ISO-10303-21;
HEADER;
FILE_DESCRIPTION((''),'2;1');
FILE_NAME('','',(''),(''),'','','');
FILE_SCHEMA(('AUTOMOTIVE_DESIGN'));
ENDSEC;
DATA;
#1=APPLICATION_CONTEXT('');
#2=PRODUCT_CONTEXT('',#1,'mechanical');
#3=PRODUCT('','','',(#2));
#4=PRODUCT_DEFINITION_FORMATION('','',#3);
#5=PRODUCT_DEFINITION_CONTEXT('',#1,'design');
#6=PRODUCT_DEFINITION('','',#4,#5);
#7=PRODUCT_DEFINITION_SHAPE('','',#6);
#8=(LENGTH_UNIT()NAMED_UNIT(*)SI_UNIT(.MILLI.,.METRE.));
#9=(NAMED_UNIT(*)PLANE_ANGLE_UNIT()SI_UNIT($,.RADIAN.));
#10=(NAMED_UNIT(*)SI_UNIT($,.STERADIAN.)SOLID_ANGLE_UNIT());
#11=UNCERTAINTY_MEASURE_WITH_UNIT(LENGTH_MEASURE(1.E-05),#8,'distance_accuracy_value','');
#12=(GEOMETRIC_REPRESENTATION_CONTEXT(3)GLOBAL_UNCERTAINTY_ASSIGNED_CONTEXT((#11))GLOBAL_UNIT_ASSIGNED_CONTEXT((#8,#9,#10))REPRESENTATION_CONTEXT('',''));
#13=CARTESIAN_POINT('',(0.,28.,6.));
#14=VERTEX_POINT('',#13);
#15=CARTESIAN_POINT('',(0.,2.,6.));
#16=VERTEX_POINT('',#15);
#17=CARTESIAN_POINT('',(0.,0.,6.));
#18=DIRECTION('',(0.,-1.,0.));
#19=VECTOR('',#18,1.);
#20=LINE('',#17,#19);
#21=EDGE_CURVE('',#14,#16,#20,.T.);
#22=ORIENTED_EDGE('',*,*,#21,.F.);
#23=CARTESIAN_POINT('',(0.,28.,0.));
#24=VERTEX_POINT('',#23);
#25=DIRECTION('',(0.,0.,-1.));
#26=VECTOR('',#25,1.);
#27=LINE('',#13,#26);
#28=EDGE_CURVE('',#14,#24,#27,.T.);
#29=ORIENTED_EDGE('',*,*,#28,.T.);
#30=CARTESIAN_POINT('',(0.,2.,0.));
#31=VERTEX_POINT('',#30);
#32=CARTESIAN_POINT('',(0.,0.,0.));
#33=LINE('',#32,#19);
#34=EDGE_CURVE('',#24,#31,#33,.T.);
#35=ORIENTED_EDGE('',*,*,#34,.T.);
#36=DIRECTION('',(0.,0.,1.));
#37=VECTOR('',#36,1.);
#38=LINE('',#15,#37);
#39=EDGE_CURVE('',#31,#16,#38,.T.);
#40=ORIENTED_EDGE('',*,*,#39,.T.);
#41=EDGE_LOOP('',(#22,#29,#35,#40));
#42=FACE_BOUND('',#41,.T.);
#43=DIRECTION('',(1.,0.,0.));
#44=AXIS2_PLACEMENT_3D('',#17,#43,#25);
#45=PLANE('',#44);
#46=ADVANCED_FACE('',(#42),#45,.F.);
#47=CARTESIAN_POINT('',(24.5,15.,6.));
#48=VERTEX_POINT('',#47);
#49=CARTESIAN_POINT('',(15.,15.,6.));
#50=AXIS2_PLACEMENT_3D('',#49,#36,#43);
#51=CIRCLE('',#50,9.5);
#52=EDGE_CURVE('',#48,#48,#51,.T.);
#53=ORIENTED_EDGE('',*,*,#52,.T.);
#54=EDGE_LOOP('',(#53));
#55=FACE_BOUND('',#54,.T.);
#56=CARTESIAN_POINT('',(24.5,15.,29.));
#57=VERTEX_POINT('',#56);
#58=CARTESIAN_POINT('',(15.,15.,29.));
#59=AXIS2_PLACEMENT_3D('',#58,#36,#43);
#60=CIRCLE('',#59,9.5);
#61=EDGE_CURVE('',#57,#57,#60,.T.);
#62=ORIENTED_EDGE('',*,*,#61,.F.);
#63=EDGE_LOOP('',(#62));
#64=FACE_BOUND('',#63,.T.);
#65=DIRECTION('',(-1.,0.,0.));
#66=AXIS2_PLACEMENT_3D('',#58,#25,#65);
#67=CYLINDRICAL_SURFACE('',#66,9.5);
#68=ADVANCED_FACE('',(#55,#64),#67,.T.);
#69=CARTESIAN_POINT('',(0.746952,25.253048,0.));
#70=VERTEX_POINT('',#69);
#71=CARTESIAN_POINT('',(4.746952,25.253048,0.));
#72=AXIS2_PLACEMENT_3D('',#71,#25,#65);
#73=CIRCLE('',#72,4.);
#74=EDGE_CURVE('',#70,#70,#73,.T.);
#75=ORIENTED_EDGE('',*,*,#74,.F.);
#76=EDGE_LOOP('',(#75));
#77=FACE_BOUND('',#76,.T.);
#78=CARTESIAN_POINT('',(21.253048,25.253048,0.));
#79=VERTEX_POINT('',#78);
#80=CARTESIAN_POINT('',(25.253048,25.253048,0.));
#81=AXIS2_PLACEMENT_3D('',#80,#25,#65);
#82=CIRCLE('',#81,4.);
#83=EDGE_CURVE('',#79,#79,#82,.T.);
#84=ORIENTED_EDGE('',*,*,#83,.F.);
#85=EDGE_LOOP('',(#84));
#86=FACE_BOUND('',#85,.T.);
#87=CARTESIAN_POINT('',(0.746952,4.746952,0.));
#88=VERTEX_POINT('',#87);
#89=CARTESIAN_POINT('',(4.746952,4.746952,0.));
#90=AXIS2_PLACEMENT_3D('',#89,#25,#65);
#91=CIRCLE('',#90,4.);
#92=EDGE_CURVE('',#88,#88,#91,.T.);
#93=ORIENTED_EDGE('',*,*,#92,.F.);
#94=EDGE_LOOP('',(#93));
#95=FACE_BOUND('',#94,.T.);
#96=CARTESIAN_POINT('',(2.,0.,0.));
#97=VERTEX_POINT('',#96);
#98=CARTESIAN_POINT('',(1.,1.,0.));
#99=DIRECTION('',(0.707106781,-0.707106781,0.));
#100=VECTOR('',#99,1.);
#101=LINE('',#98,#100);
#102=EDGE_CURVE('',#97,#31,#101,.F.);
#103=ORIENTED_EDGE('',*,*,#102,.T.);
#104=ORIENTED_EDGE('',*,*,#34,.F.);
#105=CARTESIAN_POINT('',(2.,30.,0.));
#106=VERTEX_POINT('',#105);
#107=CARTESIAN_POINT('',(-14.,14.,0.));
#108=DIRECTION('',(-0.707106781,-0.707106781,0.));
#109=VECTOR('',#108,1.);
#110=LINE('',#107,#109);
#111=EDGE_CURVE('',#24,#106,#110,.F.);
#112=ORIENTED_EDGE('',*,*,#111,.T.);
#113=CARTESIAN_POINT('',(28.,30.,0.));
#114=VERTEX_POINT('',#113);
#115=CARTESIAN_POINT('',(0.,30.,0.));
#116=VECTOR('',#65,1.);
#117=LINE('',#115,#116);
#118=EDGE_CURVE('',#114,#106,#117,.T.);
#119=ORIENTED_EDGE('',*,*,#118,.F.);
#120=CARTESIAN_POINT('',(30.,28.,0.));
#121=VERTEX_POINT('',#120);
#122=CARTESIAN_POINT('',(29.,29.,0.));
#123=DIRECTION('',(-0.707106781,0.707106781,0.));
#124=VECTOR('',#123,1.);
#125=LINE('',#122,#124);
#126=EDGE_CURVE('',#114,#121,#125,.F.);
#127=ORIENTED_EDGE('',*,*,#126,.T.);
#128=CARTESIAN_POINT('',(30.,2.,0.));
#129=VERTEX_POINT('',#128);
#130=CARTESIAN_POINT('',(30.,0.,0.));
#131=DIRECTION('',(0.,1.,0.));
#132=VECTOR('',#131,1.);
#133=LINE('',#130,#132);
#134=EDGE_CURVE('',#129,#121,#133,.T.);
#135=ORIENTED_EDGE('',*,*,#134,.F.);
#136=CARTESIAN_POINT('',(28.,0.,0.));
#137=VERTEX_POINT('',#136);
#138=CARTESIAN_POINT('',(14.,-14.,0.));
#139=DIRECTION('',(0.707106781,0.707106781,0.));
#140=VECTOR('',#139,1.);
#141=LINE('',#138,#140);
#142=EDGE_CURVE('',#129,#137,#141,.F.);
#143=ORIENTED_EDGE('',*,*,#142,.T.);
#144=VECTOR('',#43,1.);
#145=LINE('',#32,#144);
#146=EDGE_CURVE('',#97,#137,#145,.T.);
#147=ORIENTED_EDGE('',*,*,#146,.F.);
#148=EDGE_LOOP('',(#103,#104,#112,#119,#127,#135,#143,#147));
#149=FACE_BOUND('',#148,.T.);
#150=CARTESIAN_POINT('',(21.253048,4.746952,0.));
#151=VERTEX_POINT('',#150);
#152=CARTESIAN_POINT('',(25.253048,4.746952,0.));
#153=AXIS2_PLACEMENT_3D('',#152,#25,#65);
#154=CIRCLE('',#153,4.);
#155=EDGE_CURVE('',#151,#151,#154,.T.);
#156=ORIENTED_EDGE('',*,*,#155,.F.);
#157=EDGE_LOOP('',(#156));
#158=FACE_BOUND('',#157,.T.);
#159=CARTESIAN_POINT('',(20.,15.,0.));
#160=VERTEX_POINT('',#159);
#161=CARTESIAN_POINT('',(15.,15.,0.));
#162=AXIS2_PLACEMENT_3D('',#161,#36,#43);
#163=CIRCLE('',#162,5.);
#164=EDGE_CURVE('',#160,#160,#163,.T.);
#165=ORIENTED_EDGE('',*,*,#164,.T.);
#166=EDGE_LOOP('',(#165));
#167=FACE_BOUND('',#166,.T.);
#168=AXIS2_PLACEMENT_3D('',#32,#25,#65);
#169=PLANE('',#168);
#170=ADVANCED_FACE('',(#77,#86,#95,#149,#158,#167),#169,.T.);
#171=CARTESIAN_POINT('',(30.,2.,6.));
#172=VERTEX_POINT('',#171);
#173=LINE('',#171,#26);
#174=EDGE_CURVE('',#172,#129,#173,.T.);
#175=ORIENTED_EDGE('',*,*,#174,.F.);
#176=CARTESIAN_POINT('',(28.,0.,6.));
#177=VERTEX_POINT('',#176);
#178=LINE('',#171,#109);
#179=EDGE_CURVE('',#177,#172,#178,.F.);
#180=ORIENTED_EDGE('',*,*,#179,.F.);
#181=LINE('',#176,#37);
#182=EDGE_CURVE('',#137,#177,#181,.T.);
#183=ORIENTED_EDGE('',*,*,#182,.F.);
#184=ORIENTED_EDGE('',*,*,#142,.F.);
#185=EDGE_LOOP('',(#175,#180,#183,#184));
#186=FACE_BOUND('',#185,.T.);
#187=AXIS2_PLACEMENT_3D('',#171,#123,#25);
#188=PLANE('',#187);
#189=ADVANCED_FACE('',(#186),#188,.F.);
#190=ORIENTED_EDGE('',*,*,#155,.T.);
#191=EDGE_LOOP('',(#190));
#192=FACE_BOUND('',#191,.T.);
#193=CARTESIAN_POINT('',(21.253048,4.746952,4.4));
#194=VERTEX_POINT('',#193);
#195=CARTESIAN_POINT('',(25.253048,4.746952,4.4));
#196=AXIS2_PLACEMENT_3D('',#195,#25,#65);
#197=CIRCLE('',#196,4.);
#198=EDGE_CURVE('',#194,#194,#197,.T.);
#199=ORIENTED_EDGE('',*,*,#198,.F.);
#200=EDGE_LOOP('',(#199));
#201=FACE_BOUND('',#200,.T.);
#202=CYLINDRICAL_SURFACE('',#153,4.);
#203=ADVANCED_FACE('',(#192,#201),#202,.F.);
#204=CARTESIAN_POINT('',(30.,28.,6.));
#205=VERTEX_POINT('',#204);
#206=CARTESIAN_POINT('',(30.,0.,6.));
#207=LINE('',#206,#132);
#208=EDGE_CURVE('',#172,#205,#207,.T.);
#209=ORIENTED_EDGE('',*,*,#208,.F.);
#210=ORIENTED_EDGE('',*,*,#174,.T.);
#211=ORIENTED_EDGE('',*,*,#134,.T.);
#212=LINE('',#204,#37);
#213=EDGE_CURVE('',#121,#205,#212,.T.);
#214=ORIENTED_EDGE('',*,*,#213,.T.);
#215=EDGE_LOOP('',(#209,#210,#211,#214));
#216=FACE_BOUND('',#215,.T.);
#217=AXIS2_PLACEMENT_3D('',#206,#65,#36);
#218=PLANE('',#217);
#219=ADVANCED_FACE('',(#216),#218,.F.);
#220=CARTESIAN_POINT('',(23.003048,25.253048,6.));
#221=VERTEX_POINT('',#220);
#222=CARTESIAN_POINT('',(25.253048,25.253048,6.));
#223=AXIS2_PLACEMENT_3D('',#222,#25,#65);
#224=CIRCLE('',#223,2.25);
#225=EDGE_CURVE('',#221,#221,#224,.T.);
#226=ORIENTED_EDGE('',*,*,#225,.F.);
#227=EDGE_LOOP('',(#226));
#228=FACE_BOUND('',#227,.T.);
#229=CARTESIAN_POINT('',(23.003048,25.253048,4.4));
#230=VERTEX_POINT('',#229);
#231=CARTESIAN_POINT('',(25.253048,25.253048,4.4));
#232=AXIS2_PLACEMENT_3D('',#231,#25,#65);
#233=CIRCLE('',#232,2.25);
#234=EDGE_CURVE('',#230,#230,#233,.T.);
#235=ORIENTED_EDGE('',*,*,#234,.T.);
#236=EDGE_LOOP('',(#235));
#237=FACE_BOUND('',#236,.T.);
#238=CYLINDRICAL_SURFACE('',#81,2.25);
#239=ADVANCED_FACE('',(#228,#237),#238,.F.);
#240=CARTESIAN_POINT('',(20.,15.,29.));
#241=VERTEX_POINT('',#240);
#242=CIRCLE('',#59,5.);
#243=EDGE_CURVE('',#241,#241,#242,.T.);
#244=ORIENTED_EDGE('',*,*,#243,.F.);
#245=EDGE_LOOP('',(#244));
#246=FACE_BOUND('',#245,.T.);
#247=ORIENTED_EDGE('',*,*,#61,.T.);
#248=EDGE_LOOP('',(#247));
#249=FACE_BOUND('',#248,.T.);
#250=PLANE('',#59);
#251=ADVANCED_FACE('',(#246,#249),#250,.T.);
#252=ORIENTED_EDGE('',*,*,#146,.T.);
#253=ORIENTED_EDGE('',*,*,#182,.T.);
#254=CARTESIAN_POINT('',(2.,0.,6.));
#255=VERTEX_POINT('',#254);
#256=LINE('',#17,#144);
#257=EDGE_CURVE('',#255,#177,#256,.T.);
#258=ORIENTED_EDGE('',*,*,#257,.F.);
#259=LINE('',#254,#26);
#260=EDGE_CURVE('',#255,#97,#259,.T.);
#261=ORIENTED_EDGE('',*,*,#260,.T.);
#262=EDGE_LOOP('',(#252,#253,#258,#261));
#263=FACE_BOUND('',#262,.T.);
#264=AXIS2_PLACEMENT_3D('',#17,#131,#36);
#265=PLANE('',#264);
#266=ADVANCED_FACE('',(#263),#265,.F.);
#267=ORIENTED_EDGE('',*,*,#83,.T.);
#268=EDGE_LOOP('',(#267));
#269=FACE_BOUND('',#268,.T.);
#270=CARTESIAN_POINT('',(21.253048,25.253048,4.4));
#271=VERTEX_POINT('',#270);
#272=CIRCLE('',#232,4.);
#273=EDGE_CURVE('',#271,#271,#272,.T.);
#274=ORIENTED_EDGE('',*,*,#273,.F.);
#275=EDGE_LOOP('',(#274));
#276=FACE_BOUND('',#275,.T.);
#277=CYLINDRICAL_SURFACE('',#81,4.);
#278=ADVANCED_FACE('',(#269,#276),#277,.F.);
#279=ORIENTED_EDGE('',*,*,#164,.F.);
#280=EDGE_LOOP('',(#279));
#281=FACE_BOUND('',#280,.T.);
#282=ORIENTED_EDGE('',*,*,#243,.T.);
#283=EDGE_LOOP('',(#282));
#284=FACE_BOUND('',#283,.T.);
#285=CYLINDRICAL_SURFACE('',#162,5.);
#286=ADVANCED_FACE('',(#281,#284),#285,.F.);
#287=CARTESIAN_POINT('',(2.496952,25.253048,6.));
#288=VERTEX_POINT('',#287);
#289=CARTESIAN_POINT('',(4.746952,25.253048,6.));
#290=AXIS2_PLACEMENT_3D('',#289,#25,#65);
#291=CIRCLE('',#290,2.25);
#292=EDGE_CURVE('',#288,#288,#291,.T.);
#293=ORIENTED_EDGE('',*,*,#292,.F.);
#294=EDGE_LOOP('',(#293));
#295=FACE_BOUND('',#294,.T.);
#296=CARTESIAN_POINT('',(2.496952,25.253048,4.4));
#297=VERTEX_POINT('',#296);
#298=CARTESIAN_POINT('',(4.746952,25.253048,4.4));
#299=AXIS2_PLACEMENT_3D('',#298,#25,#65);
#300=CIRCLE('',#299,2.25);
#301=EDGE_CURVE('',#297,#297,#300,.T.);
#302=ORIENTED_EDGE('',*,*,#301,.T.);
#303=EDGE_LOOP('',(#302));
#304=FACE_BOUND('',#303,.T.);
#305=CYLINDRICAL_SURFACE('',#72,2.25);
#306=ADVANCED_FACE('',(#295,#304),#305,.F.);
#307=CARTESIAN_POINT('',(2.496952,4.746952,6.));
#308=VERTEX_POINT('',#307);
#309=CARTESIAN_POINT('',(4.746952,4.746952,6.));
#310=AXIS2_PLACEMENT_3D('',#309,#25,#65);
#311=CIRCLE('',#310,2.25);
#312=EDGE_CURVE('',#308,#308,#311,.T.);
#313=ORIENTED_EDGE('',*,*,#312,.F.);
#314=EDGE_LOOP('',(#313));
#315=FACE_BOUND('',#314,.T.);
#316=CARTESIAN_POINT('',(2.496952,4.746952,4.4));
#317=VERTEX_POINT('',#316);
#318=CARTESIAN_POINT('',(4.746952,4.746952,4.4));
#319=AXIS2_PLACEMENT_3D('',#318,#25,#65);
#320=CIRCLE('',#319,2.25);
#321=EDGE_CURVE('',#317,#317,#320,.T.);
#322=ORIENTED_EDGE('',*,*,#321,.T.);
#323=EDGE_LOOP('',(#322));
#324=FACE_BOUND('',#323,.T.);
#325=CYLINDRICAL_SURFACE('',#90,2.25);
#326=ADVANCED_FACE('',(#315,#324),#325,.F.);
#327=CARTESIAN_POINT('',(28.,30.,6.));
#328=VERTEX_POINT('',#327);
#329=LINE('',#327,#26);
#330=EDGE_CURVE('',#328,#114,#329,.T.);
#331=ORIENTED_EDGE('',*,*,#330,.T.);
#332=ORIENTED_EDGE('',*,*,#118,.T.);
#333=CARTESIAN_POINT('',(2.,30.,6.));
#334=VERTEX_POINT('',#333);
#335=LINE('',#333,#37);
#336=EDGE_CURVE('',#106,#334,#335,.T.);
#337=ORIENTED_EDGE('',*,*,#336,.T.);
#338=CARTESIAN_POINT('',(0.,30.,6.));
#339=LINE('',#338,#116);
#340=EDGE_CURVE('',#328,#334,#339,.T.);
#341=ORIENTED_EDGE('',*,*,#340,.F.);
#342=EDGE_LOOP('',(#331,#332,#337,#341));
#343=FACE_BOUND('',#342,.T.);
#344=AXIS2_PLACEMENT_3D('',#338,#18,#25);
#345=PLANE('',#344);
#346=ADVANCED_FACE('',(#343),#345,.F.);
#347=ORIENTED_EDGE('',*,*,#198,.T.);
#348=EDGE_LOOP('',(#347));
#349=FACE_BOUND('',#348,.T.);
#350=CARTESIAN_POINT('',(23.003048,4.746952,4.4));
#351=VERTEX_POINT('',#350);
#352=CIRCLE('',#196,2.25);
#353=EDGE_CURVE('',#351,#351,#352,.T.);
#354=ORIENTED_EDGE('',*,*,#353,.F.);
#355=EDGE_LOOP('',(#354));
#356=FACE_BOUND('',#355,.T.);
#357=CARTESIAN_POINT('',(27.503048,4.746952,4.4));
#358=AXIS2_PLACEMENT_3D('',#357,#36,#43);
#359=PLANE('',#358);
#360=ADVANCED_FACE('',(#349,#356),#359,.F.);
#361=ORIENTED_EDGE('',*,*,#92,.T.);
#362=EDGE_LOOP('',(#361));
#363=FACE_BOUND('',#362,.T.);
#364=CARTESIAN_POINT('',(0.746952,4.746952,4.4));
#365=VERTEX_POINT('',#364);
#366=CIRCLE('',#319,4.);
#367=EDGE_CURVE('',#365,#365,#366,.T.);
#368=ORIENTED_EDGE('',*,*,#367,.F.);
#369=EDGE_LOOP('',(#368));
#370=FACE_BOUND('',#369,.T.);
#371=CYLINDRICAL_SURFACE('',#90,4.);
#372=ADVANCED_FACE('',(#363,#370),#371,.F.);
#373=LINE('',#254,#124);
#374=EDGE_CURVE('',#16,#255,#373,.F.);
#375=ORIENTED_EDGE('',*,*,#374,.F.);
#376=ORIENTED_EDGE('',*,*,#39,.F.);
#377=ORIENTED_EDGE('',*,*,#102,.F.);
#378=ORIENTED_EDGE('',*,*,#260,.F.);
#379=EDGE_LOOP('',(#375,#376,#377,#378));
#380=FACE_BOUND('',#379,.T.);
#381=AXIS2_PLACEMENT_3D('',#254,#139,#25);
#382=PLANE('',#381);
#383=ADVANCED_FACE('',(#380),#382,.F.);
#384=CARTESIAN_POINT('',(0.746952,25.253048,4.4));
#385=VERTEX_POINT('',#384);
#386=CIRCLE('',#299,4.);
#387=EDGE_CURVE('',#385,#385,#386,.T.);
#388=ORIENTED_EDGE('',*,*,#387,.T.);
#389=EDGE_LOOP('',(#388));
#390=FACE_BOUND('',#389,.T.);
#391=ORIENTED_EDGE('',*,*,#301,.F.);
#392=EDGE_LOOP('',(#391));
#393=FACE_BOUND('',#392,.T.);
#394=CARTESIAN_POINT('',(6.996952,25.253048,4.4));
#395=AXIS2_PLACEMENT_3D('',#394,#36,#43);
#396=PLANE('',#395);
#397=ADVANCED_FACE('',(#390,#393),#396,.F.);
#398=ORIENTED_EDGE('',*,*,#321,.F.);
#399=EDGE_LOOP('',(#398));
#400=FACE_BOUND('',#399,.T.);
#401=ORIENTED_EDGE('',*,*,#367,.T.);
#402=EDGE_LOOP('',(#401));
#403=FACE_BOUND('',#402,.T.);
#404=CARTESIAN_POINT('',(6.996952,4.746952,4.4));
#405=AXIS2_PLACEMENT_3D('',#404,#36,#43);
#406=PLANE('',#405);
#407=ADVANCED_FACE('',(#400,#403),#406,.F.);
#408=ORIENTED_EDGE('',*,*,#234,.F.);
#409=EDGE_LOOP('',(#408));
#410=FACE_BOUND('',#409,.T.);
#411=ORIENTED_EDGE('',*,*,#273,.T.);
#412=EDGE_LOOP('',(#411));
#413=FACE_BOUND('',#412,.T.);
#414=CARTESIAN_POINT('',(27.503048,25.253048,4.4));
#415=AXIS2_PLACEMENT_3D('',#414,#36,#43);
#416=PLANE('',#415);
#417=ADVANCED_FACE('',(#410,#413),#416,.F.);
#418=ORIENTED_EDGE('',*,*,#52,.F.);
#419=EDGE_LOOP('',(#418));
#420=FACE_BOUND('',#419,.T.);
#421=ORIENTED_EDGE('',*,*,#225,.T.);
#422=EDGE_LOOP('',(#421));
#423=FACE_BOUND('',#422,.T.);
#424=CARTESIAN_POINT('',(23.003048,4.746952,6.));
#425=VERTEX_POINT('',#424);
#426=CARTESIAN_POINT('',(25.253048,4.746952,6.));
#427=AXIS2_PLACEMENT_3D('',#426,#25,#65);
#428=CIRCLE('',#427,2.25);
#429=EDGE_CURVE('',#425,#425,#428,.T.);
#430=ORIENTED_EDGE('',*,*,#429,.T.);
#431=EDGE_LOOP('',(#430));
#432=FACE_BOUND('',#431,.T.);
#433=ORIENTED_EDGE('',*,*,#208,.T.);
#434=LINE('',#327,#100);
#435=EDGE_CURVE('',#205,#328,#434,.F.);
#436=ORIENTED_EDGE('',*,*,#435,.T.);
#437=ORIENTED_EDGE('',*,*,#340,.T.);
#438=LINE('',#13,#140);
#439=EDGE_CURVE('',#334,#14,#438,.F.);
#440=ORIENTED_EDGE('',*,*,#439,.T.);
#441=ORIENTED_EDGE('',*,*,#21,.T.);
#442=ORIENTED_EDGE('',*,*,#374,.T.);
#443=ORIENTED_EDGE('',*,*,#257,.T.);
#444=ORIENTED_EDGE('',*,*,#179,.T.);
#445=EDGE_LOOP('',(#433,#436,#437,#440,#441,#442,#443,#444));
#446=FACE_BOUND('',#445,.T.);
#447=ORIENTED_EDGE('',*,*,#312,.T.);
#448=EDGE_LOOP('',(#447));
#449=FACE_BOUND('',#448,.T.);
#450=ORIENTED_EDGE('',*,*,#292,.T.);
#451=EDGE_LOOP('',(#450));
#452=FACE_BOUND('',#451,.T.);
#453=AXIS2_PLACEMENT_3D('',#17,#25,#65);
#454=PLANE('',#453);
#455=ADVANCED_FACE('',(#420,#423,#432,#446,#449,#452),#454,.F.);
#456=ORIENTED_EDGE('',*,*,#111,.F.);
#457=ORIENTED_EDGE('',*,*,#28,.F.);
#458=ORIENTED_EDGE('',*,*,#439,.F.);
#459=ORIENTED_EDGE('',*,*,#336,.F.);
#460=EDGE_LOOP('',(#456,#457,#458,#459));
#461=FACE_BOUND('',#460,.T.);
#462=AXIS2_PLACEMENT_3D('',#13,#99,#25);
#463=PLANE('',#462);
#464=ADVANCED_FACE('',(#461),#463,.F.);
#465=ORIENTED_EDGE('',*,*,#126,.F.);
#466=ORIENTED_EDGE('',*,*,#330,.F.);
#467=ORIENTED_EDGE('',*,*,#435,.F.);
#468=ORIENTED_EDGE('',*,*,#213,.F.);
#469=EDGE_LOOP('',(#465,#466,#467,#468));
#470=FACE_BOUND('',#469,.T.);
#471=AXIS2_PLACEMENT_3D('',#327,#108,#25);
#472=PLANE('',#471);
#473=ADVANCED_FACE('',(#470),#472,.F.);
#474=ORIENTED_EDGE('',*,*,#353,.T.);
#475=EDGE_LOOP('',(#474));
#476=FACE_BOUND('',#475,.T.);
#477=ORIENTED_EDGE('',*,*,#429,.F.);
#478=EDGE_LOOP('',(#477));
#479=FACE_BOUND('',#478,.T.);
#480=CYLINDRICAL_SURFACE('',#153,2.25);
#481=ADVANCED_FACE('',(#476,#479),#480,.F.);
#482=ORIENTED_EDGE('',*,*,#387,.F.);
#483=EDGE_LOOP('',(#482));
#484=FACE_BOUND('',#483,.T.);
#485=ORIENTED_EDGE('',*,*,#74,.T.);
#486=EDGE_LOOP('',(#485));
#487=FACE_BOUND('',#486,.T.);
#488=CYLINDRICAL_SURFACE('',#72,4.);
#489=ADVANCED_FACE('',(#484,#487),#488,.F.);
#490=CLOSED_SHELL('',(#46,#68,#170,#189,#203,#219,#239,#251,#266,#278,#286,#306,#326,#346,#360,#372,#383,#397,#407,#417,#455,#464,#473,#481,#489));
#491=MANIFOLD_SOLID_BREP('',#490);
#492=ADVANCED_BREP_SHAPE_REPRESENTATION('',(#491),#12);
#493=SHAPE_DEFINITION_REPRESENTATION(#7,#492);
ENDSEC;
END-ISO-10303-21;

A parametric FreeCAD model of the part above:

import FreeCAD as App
import Part
import Sketcher

V = App.Vector


def edges_at(feature, points):
    """Names of the edges that pass closest to the given points."""
    edges = feature.Shape.Edges
    near = lambda p: min(range(len(edges)), key=lambda i: edges[i].distToShape(Part.Vertex(*p))[0])
    return sorted({f"Edge{near(p) + 1}" for p in points})


def add_polygon(sketch, points):
    """Adds a closed chain of lines whose ends are joined by coincident constraints."""
    first, n = sketch.GeometryCount, len(points)
    for a, b in zip(points, points[1:] + points[:1]):
        sketch.addGeometry(Part.LineSegment(App.Vector(*a, 0), App.Vector(*b, 0)), False)
    for i in range(n):
        sketch.addConstraint(Sketcher.Constraint("Coincident", first + i, 2, first + (i + 1) % n, 1))

doc = App.newDocument("Part")
body = doc.addObject("PartDesign::Body", "Body")

# Sketch on XY plane
sketch1 = body.newObject("Sketcher::SketchObject", "Sketch")
sketch1.AttachmentSupport = (doc.getObject("XY_Plane"), [""])
sketch1.MapMode = "FlatFace"
add_polygon(sketch1, [(0, 30), (0, 0), (30, 0), (30, 30)])  # lines 0-3
sketch1.addConstraint([
    Sketcher.Constraint("Vertical", 0),
    Sketcher.Constraint("Horizontal", 1),
    Sketcher.Constraint("Vertical", 2),
    Sketcher.Constraint("Horizontal", 3),
    Sketcher.Constraint("Coincident", 0, 2, -1, 1),
    Sketcher.Constraint("Equal", 3, 0),
    Sketcher.Constraint("DistanceX", 1, 1, 1, 2, 30.0),
])
pad1 = body.newObject("PartDesign::Pad", "Pad")
pad1.Profile = sketch1
pad1.Length = 6

# Sketch on XY plane
sketch2 = body.newObject("Sketcher::SketchObject", "Sketch001")
sketch2.AttachmentSupport = (doc.getObject("XY_Plane"), [""])
sketch2.MapMode = "FlatFace"
sketch2.AttachmentOffset = App.Placement(V(0, 0, 6), App.Rotation())
sketch2.addGeometry(Part.Circle(V(15, 15, 0), V(0, 0, 1), 10), False)
sketch2.addConstraint([
    Sketcher.Constraint("Diameter", 0, 19.0),
    Sketcher.Constraint("DistanceX", -1, 1, 0, 3, 15.0),
    Sketcher.Constraint("DistanceY", -1, 1, 0, 3, 15.0),
])
pad2 = body.newObject("PartDesign::Pad", "Pad001")
pad2.Profile = sketch2
pad2.Length = 23

# Sketch on XY plane
sketch3 = body.newObject("Sketcher::SketchObject", "Sketch002")
sketch3.AttachmentSupport = (doc.getObject("XY_Plane"), [""])
sketch3.MapMode = "FlatFace"
sketch3.AttachmentOffset = App.Placement(V(0, 0, 29), App.Rotation())
sketch3.addGeometry(Part.Circle(V(15, 15, 0), V(0, 0, 1), 5), False)
sketch3.addConstraint([
    Sketcher.Constraint("Diameter", 0, 10.0),
    Sketcher.Constraint("DistanceX", -1, 1, 0, 3, 15.0),
    Sketcher.Constraint("DistanceY", -1, 1, 0, 3, 15.0),
])
pocket1 = body.newObject("PartDesign::Pocket", "Pocket")
pocket1.Profile = sketch3
pocket1.Type = "ThroughAll"

# Sketch on XY plane
sketch4 = body.newObject("Sketcher::SketchObject", "Sketch003")
sketch4.AttachmentSupport = (doc.getObject("XY_Plane"), [""])
sketch4.MapMode = "FlatFace"
sketch4.addGeometry([
    Part.Circle(V(25.3, 25.3, 0), V(0, 0, 1), 2.2),
    Part.Circle(V(4.7, 25.3, 0), V(0, 0, 1), 2.2),
    Part.Circle(V(4.7, 4.7, 0), V(0, 0, 1), 2.2),
    Part.Circle(V(25.3, 4.7, 0), V(0, 0, 1), 2.2),
], False)
sketch4.addConstraint([
    Sketcher.Constraint("Equal", 0, 1),
    Sketcher.Constraint("Equal", 1, 2),
    Sketcher.Constraint("Equal", 2, 3),
    Sketcher.Constraint("Horizontal", 0, 3, 1, 3),
    Sketcher.Constraint("Horizontal", 2, 3, 3, 3),
    Sketcher.Constraint("Vertical", 1, 3, 2, 3),
    Sketcher.Constraint("Vertical", 0, 3, 3, 3),
    Sketcher.Constraint("Diameter", 0, 4.5),
    Sketcher.Constraint("DistanceX", -1, 1, 0, 3, 25.253048),
    Sketcher.Constraint("DistanceY", -1, 1, 0, 3, 25.253048),
    Sketcher.Constraint("DistanceX", -1, 1, 1, 3, 4.746952),
    Sketcher.Constraint("DistanceY", -1, 1, 2, 3, 4.746952),
])
doc.recompute()
hole = body.newObject("PartDesign::Hole", "Hole")
hole.Profile = sketch4
hole.ThreadType = "None"
hole.Diameter = 4.5
hole.DepthType = "ThroughAll"
hole.HoleCutType = "Counterbore"
hole.HoleCutDiameter = 8
hole.HoleCutDepth = 4.4
hole.Reversed = True
doc.recompute()

chamfer = body.newObject("PartDesign::Chamfer", "Chamfer")
chamfer.Base = (hole, edges_at(hole, [
    (0, 30, 3),
    (30, 30, 3),
    (30, 0, 3),
    (0, 0, 3),
]))
chamfer.Size = 2

doc.recompute()
